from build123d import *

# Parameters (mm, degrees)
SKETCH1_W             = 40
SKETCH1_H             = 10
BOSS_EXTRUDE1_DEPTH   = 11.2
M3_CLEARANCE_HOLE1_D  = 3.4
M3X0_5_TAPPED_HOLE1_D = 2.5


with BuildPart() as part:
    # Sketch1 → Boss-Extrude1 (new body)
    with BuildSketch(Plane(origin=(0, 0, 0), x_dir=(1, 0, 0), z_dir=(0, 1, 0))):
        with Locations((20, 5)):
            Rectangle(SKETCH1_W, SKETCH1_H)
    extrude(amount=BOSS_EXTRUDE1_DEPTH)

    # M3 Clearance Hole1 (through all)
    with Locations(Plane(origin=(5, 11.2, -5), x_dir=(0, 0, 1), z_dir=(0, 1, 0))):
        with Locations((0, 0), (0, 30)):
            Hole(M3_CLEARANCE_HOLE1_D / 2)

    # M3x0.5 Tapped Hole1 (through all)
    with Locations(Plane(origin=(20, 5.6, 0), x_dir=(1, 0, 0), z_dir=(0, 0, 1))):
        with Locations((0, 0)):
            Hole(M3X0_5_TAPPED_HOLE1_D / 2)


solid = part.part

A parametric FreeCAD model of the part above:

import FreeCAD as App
import Part
import Sketcher
from FreeCAD import Vector
Q = App.Units.Quantity

doc = App.newDocument("Part")
params = doc.addObject("Spreadsheet::Sheet", "Params")
for row, (alias, value) in enumerate([
    ("sketch1_width", "40 mm"),
    ("sketch1_height", "10 mm"),
    ("pad1_length", "11.2 mm"),
    ("sketch2_diameter", "3.4 mm"),
    ("hole_diameter", "3.4 mm"),
    ("sketch3_diameter", "2.5 mm"),
    ("hole2_diameter", "2.5 mm"),
], start=1):
    params.set(f"A{row}", alias)
    params.set(f"B{row}", "=" + value)
    params.setAlias(f"B{row}", alias)

body = doc.addObject("PartDesign::Body", "Body")

# Sketch on XZ plane
sketch1 = body.newObject("Sketcher::SketchObject", "Sketch")
sketch1.AttachmentSupport = (doc.getObject("XZ_Plane"), [""])
sketch1.MapMode = "FlatFace"
sketch1.addGeometry(Part.LineSegment(Vector(0, -10, 0), Vector(0, 0, 0)), False)
sketch1.addGeometry(Part.LineSegment(Vector(0, 0, 0), Vector(40, 0, 0)), False)
sketch1.addGeometry(Part.LineSegment(Vector(40, 0, 0), Vector(40, -10, 0)), False)
sketch1.addGeometry(Part.LineSegment(Vector(40, -10, 0), Vector(0, -10, 0)), False)
sketch1.addConstraint(Sketcher.Constraint("Coincident", 0, 2, 1, 1))
sketch1.addConstraint(Sketcher.Constraint("Coincident", 1, 2, 2, 1))
sketch1.addConstraint(Sketcher.Constraint("Coincident", 2, 2, 3, 1))
sketch1.addConstraint(Sketcher.Constraint("Coincident", 3, 2, 0, 1))
sketch1.addConstraint(Sketcher.Constraint("Vertical", 0))
sketch1.addConstraint(Sketcher.Constraint("Horizontal", 1))
sketch1.addConstraint(Sketcher.Constraint("Vertical", 2))
sketch1.addConstraint(Sketcher.Constraint("Horizontal", 3))
sketch1.addConstraint(Sketcher.Constraint("Coincident", 0, 2, -1, 1))
sketch1.addConstraint(Sketcher.Constraint("DistanceX", 1, 1, 1, 2, Q("40 mm")))
sketch1.addConstraint(Sketcher.Constraint("DistanceY", 0, 1, 0, 2, Q("10 mm")))
sketch1.setExpression("Constraints[9]", "Params.sketch1_width")
sketch1.setExpression("Constraints[10]", "Params.sketch1_height")
pad1 = body.newObject("PartDesign::Pad", "Pad")
pad1.Profile = sketch1
pad1.setExpression("Length", "Params.pad1_length")
pad1.Reversed = True

# Sketch on XZ plane
sketch2 = body.newObject("Sketcher::SketchObject", "Sketch001")
sketch2.AttachmentSupport = (doc.getObject("XZ_Plane"), [""])
sketch2.MapMode = "FlatFace"
sketch2.AttachmentOffset = App.Placement(Vector(0, 0, -11.2), App.Rotation())
sketch2.addGeometry(Part.Circle(Vector(5, -5, 0), Vector(0, 0, 1), 1.7), False)
sketch2.addGeometry(Part.Circle(Vector(35, -5, 0), Vector(0, 0, 1), 1.7), False)
sketch2.addConstraint(Sketcher.Constraint("Equal", 0, 1))
sketch2.addConstraint(Sketcher.Constraint("Horizontal", 0, 3, 1, 3))
sketch2.addConstraint(Sketcher.Constraint("Diameter", 0, Q("3.4 mm")))
sketch2.addConstraint(Sketcher.Constraint("DistanceX", -1, 1, 0, 3, Q("5 mm")))
sketch2.addConstraint(Sketcher.Constraint("DistanceY", 0, 3, -1, 1, Q("5 mm")))
sketch2.addConstraint(Sketcher.Constraint("DistanceX", -1, 1, 1, 3, Q("35 mm")))
sketch2.setExpression("Constraints[2]", "Params.sketch2_diameter")
doc.recompute()
hole = body.newObject("PartDesign::Hole", "Hole")
hole.Profile = sketch2
hole.ThreadType = "None"
hole.setExpression("Diameter", "Params.hole_diameter")
hole.DepthType = "ThroughAll"
hole.Reversed = True

# Sketch on XY plane
sketch3 = body.newObject("Sketcher::SketchObject", "Sketch002")
sketch3.AttachmentSupport = (doc.getObject("XY_Plane"), [""])
sketch3.MapMode = "FlatFace"
sketch3.addGeometry(Part.Circle(Vector(20, 5.6, 0), Vector(0, 0, 1), 1.2), False)
sketch3.addConstraint(Sketcher.Constraint("Diameter", 0, Q("2.5 mm")))
sketch3.addConstraint(Sketcher.Constraint("DistanceX", -1, 1, 0, 3, Q("20 mm")))
sketch3.addConstraint(Sketcher.Constraint("DistanceY", -1, 1, 0, 3, Q("5.6 mm")))
sketch3.setExpression("Constraints[0]", "Params.sketch3_diameter")
doc.recompute()
hole2 = body.newObject("PartDesign::Hole", "Hole001")
hole2.Profile = sketch3
hole2.ThreadType = "None"
hole2.setExpression("Diameter", "Params.hole2_diameter")
hole2.DepthType = "ThroughAll"

doc.recompute()
